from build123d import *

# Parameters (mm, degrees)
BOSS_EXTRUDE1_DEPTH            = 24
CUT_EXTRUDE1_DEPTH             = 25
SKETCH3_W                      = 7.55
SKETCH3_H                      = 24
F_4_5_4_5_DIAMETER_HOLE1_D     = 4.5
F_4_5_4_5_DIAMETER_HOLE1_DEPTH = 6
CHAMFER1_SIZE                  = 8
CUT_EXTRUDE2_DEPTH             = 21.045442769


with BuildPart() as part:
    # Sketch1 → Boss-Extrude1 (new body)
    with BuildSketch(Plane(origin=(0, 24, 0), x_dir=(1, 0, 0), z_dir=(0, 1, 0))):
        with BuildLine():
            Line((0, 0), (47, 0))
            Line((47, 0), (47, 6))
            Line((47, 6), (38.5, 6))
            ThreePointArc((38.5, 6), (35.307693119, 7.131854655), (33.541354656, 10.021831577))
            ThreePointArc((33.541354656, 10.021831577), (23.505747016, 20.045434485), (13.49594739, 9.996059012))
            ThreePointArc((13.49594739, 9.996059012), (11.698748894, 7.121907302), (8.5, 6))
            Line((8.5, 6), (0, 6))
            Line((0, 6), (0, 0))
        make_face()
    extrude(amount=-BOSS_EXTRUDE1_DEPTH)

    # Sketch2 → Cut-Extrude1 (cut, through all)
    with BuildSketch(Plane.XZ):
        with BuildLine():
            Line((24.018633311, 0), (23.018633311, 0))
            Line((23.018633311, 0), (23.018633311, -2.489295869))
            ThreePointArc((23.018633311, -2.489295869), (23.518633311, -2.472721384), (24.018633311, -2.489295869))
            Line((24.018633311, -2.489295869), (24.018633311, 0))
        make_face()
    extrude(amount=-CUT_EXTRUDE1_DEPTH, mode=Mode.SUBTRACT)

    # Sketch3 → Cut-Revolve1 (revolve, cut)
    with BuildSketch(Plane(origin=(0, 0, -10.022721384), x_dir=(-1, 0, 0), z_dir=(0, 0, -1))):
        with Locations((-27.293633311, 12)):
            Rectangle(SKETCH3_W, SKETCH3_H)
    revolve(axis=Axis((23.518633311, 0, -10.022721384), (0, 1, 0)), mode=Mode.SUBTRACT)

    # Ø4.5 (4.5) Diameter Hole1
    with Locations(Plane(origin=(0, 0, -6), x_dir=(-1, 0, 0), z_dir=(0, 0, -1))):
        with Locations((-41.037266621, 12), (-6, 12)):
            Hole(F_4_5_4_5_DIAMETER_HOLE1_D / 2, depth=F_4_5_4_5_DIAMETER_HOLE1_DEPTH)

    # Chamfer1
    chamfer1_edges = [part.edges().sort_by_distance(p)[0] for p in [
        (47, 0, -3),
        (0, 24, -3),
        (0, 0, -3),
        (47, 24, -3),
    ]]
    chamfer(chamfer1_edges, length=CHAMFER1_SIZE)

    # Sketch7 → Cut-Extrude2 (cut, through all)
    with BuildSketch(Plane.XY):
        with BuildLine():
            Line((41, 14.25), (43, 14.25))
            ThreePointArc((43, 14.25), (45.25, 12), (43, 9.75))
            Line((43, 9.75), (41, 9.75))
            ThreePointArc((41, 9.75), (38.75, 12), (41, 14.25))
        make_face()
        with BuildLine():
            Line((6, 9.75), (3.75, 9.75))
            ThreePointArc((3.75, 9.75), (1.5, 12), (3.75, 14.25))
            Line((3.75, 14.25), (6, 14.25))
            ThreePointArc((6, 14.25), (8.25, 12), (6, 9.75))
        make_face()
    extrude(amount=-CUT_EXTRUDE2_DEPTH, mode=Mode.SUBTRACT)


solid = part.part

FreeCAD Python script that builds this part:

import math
import FreeCAD as App
import Part
import Sketcher
Q = App.Units.Quantity


def edges_at(feature, points):
    """Names of the edges that pass closest to the given points."""
    edges = feature.Shape.Edges
    near = lambda p: min(range(len(edges)), key=lambda i: edges[i].distToShape(Part.Vertex(*p))[0])
    return sorted({f"Edge{near(p) + 1}" for p in points})

doc = App.newDocument("Part")
body = doc.addObject("PartDesign::Body", "Body")

# Sketch on XZ plane
sketch1 = doc.addObject("Sketcher::SketchObject", "Sketch")
body.addObject(sketch1)
sketch1.AttachmentSupport = (doc.XZ_Plane, [""])
sketch1.MapMode = "FlatFace"
sketch1.AttachmentOffset = App.Placement(App.Vector(0, 0, -24), App.Rotation())
sketch1.addGeometry([
    Part.LineSegment(App.Vector(0, 0, 0), App.Vector(47, 0, 0)),  # 0
    Part.LineSegment(App.Vector(47, 0, 0), App.Vector(47, -6, 0)),  # 1
    Part.LineSegment(App.Vector(47, -6, 0), App.Vector(38, -6, 0)),  # 2
    Part.ArcOfCircle(Part.Circle(App.Vector(38, -11, 0), App.Vector(0, 0, 1), 5), math.radians(90), math.radians(168)),  # 3
    Part.ArcOfCircle(Part.Circle(App.Vector(24, -10, 0), App.Vector(0, 0, 1), 10), math.radians(180), math.radians(360)),  # 4
    Part.ArcOfCircle(Part.Circle(App.Vector(9, -11, 0), App.Vector(0, 0, 1), 5), math.radians(13), math.radians(90)),  # 5
    Part.LineSegment(App.Vector(8, -6, 0), App.Vector(0, -6, 0)),  # 6
    Part.LineSegment(App.Vector(0, -6, 0), App.Vector(0, 0, 0)),  # 7
], False)
sketch1.addConstraint([
    Sketcher.Constraint("Coincident", 0, 2, 1, 1),
    Sketcher.Constraint("Coincident", 1, 2, 2, 1),
    Sketcher.Constraint("Tangent", 2, 2, 3, 1),
    Sketcher.Constraint("Coincident", 3, 2, 4, 2),
    Sketcher.Constraint("Coincident", 4, 1, 5, 1),
    Sketcher.Constraint("Tangent", 5, 2, 6, 1),
    Sketcher.Constraint("Coincident", 6, 2, 7, 1),
    Sketcher.Constraint("Coincident", 7, 2, 0, 1),
    Sketcher.Constraint("Horizontal", 0),
    Sketcher.Constraint("Vertical", 1),
    Sketcher.Constraint("Horizontal", 2),
    Sketcher.Constraint("Horizontal", 6),
    Sketcher.Constraint("Vertical", 7),
    Sketcher.Constraint("Coincident", 7, 2, -1, 1),
    Sketcher.Constraint("Horizontal", 2, 2, 5, 2),
    Sketcher.Constraint("Equal", 2, 6),
    Sketcher.Constraint("DistanceX", 0, 1, 0, 2, Q("47 mm")),
    Sketcher.Constraint("DistanceY", 1, 2, 1, 1, Q("6 mm")),
    Sketcher.Constraint("DistanceX", 2, 2, 2, 1, Q("8.5 mm")),
    Sketcher.Constraint("Radius", 4, Q("10.022721 mm")),
    Sketcher.Constraint("Radius", 3, Q("5.067752 mm")),
    Sketcher.Constraint("Radius", 5, Q("5.121043 mm")),
    Sketcher.Constraint("DistanceY", 4, 3, -1, 1, Q("10.022721 mm")),
    Sketcher.Constraint("DistanceY", 3, 2, -1, 1, Q("10.021832 mm")),
])
pad1 = doc.addObject("PartDesign::Pad", "Pad")
body.addObject(pad1)
pad1.Profile = sketch1
pad1.Length = 24

# Sketch on XZ plane
sketch2 = doc.addObject("Sketcher::SketchObject", "Sketch001")
body.addObject(sketch2)
sketch2.AttachmentSupport = (doc.XZ_Plane, [""])
sketch2.MapMode = "FlatFace"
sketch2.addGeometry([
    Part.LineSegment(App.Vector(24, 0, 0), App.Vector(23, 0, 0)),
    Part.LineSegment(App.Vector(23, 0, 0), App.Vector(23, -2.5, 0)),
    Part.ArcOfCircle(Part.Circle(App.Vector(23.5, -10, 0), App.Vector(0, 0, 1), 7.5), math.radians(86.2), math.radians(93.8)),
    Part.LineSegment(App.Vector(24, -2.5, 0), App.Vector(24, 0, 0)),
], False)
sketch2.addConstraint([
    Sketcher.Constraint("Coincident", 0, 2, 1, 1),
    Sketcher.Constraint("Coincident", 1, 2, 2, 2),
    Sketcher.Constraint("Coincident", 2, 1, 3, 1),
    Sketcher.Constraint("Coincident", 3, 2, 0, 1),
    Sketcher.Constraint("Horizontal", 0),
    Sketcher.Constraint("Vertical", 1),
    Sketcher.Constraint("Vertical", 3),
    Sketcher.Constraint("PointOnObject", 0, 2, -1),
    Sketcher.Constraint("Horizontal", 1, 2, 2, 1),
    Sketcher.Constraint("DistanceX", 0, 2, 0, 1, Q("1 mm")),
    Sketcher.Constraint("Radius", 2, Q("7.55 mm")),
    Sketcher.Constraint("DistanceY", 1, 2, 1, 1, Q("2.489296 mm")),
    Sketcher.Constraint("DistanceX", -1, 1, 2, 3, Q("23.518633 mm")),
])
pocket1 = doc.addObject("PartDesign::Pocket", "Pocket")
body.addObject(pocket1)
pocket1.Profile = sketch2
pocket1.Type = "ThroughAll"

# Sketch on XY plane
sketch3 = doc.addObject("Sketcher::SketchObject", "Sketch002")
body.addObject(sketch3)
sketch3.AttachmentSupport = (doc.XY_Plane, [""])
sketch3.MapMode = "FlatFace"
sketch3.AttachmentOffset = App.Placement(App.Vector(0, 0, -10.022721), App.Rotation())
sketch3.addGeometry([
    Part.LineSegment(App.Vector(31, 24, 0), App.Vector(31, 0, 0)),
    Part.LineSegment(App.Vector(31, 0, 0), App.Vector(24, 0, 0)),
    Part.LineSegment(App.Vector(24, 0, 0), App.Vector(24, 24, 0)),
    Part.LineSegment(App.Vector(24, 24, 0), App.Vector(31, 24, 0)),
], False)
sketch3.addGeometry(Part.LineSegment(App.Vector(24, 0, 0), App.Vector(24, 24, 0)), True)  # axis
sketch3.addConstraint([
    Sketcher.Constraint("Coincident", 0, 2, 1, 1),
    Sketcher.Constraint("Coincident", 1, 2, 2, 1),
    Sketcher.Constraint("Coincident", 2, 2, 3, 1),
    Sketcher.Constraint("Coincident", 3, 2, 0, 1),
    Sketcher.Constraint("Vertical", 0),
    Sketcher.Constraint("Horizontal", 1),
    Sketcher.Constraint("Vertical", 2),
    Sketcher.Constraint("Horizontal", 3),
    Sketcher.Constraint("Vertical", 4),
    Sketcher.Constraint("Coincident", 4, 1, 1, 2),
    Sketcher.Constraint("PointOnObject", 0, 2, -1),
    Sketcher.Constraint("Horizontal", 3, 2, 4, 2),
    Sketcher.Constraint("DistanceY", 0, 2, 0, 1, Q("24 mm")),
    Sketcher.Constraint("DistanceX", 1, 2, 1, 1, Q("7.55 mm")),
    Sketcher.Constraint("DistanceX", -1, 1, 0, 2, Q("31.068633 mm")),
])
groove = doc.addObject("PartDesign::Groove", "Groove")
body.addObject(groove)
groove.Profile = sketch3
groove.ReferenceAxis = (sketch3, ["Axis0"])
groove.Angle = 360

# Sketch on XY plane
sketch4 = doc.addObject("Sketcher::SketchObject", "Sketch003")
body.addObject(sketch4)
sketch4.AttachmentSupport = (doc.XY_Plane, [""])
sketch4.MapMode = "FlatFace"
sketch4.AttachmentOffset = App.Placement(App.Vector(0, 0, -6), App.Rotation())
sketch4.addGeometry([
    Part.Circle(App.Vector(41, 12, 0), App.Vector(0, 0, 1), 2.2),
    Part.Circle(App.Vector(6, 12, 0), App.Vector(0, 0, 1), 2.2),
], False)
sketch4.addConstraint([
    Sketcher.Constraint("Equal", 0, 1),
    Sketcher.Constraint("Horizontal", 0, 3, 1, 3),
    Sketcher.Constraint("Diameter", 0, Q("4.5 mm")),
    Sketcher.Constraint("DistanceY", -1, 1, 0, 3, Q("12 mm")),
    Sketcher.Constraint("DistanceX", -1, 1, 1, 3, Q("6 mm")),
    Sketcher.Constraint("DistanceX", -1, 1, 0, 3, Q("41.037267 mm")),
])
doc.recompute()
hole = doc.addObject("PartDesign::Hole", "Hole")
body.addObject(hole)
hole.Profile = sketch4
hole.ThreadType = "None"
hole.Diameter = 4.5
hole.DepthType = "Dimension"
hole.Depth = 6
hole.DrillPoint = "Flat"
hole.Reversed = True
doc.recompute()

chamfer = doc.addObject("PartDesign::Chamfer", "Chamfer")
body.addObject(chamfer)
chamfer.Base = (hole, edges_at(hole, [
    (47, 0, -3),
    (0, 24, -3),
    (0, 0, -3),
    (47, 24, -3),
]))
chamfer.Size = 8

# Sketch on XY plane
sketch5 = doc.addObject("Sketcher::SketchObject", "Sketch004")
body.addObject(sketch5)
sketch5.AttachmentSupport = (doc.XY_Plane, [""])
sketch5.MapMode = "FlatFace"
sketch5.addGeometry([
    Part.LineSegment(App.Vector(43, 14.2, 0), App.Vector(41, 14.2, 0)),  # 0
    Part.ArcOfCircle(Part.Circle(App.Vector(41, 12, 0), App.Vector(0, 0, 1), 2.2), math.radians(90), math.radians(270)),  # 1
    Part.LineSegment(App.Vector(41, 9.8, 0), App.Vector(43, 9.8, 0)),  # 2
    Part.ArcOfCircle(Part.Circle(App.Vector(43, 12, 0), App.Vector(0, 0, 1), 2.2), math.radians(-90), math.radians(90)),  # 3
    Part.LineSegment(App.Vector(3.8, 9.8, 0), App.Vector(6, 9.8, 0)),  # 4
    Part.ArcOfCircle(Part.Circle(App.Vector(6, 12, 0), App.Vector(0, 0, 1), 2.2), math.radians(-90), math.radians(90)),  # 5
    Part.LineSegment(App.Vector(6, 14.2, 0), App.Vector(3.8, 14.2, 0)),  # 6
    Part.ArcOfCircle(Part.Circle(App.Vector(3.8, 12, 0), App.Vector(0, 0, 1), 2.2), math.radians(90), math.radians(270)),  # 7
], False)
sketch5.addConstraint([
    Sketcher.Constraint("Tangent", 0, 2, 1, 1),
    Sketcher.Constraint("Tangent", 1, 2, 2, 1),
    Sketcher.Constraint("Tangent", 2, 2, 3, 1),
    Sketcher.Constraint("Tangent", 3, 2, 0, 1),
    Sketcher.Constraint("Tangent", 4, 2, 5, 1),
    Sketcher.Constraint("Tangent", 5, 2, 6, 1),
    Sketcher.Constraint("Tangent", 6, 2, 7, 1),
    Sketcher.Constraint("Tangent", 7, 2, 4, 1),
    Sketcher.Constraint("Horizontal", 0),
    Sketcher.Constraint("Horizontal", 2),
    Sketcher.Constraint("Horizontal", 4),
    Sketcher.Constraint("Horizontal", 6),
    Sketcher.Constraint("Equal", 3, 5),
    Sketcher.Constraint("Horizontal", 3, 3, 5, 3),
    Sketcher.Constraint("DistanceX", 0, 2, 0, 1, Q("2 mm")),
    Sketcher.Constraint("Radius", 1, Q("2.25 mm")),
    Sketcher.Constraint("DistanceX", -1, 1, 1, 3, Q("41 mm")),
    Sketcher.Constraint("DistanceY", -1, 1, 1, 3, Q("12 mm")),
    Sketcher.Constraint("DistanceX", -1, 1, 5, 3, Q("6 mm")),
    Sketcher.Constraint("DistanceX", 4, 1, 4, 2, Q("2.25 mm")),
])
pocket2 = doc.addObject("PartDesign::Pocket", "Pocket001")
body.addObject(pocket2)
pocket2.Profile = sketch5
pocket2.Type = "ThroughAll"

doc.recompute()
